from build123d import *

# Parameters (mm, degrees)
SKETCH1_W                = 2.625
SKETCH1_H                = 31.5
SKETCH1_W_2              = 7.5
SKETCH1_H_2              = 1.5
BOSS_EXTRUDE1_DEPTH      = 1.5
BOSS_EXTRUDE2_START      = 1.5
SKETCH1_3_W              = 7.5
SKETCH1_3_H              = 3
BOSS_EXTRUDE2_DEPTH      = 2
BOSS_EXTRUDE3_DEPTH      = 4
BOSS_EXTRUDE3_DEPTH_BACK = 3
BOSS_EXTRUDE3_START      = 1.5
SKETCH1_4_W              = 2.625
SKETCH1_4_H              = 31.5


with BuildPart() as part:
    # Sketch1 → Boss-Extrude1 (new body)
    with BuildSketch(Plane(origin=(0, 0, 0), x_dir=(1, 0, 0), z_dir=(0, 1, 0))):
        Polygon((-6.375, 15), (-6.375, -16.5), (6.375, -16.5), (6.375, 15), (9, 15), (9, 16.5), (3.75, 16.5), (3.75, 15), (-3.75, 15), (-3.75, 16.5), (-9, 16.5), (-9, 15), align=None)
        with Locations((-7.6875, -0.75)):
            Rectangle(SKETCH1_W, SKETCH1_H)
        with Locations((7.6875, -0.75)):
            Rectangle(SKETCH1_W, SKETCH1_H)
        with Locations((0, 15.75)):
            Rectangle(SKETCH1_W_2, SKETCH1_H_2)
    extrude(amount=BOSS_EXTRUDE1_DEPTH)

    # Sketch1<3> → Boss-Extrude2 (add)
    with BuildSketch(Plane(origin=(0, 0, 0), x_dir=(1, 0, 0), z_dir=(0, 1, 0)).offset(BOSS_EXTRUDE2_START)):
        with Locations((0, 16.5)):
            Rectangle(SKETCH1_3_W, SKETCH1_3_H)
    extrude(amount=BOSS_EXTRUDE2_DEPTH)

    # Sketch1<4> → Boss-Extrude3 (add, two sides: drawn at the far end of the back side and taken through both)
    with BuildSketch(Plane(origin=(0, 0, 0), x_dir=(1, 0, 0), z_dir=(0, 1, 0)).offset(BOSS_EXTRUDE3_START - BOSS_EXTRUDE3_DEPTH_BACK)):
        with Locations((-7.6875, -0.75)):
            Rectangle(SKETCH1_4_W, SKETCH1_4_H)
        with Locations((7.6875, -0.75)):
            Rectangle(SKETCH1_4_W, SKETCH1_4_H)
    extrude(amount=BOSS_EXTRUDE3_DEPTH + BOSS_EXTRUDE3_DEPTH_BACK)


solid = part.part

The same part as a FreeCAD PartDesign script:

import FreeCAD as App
import Part
import Sketcher
from FreeCAD import Vector


def add_polygon(sketch, points):
    """Adds a closed chain of lines whose ends are joined by coincident constraints."""
    first, n = sketch.GeometryCount, len(points)
    for a, b in zip(points, points[1:] + points[:1]):
        sketch.addGeometry(Part.LineSegment(App.Vector(*a, 0), App.Vector(*b, 0)), False)
    for i in range(n):
        sketch.addConstraint(Sketcher.Constraint("Coincident", first + i, 2, first + (i + 1) % n, 1))

doc = App.newDocument("Part")
params = doc.addObject("Spreadsheet::Sheet", "Params")
for row, (alias, value) in enumerate([
    ("sketch1_width", "18 mm"),
    ("sketch1_height", "33 mm"),
    ("pad1_length", "1.5 mm"),
    ("sketch2_height", "3 mm"),
    ("sketch2_width", "7.5 mm"),
    ("pad2_length", "2 mm"),
    ("sketch3_height", "31.5 mm"),
    ("pad3_length", "4 mm"),
    ("pad3_length2", "3 mm"),
], start=1):
    params.set(f"A{row}", alias)
    params.set(f"B{row}", "=" + value)
    params.setAlias(f"B{row}", alias)

body = doc.addObject("PartDesign::Body", "Body")

sketch1 = doc.addObject("Sketcher::SketchObject", "Sketch")
body.addObject(sketch1)
sketch1.AttachmentSupport = (doc.XZ_Plane, [""])
sketch1.MapMode = "FlatFace"
add_polygon(sketch1, [(9, -16), (-9, -16), (-9, 16), (9, 16)])
sketch1.addConstraint(Sketcher.Constraint("Horizontal", 0))
sketch1.addConstraint(Sketcher.Constraint("Vertical", 1))
sketch1.addConstraint(Sketcher.Constraint("Horizontal", 2))
sketch1.addConstraint(Sketcher.Constraint("Vertical", 3))
sketch1.addConstraint(Sketcher.Constraint("Symmetric", 0, 2, 2, 2, -1, 1))
sketch1.addConstraint(Sketcher.Constraint("DistanceX", 0, 2, 0, 1, 18.0))
sketch1.addConstraint(Sketcher.Constraint("DistanceY", 1, 1, 1, 2, 33.0))
sketch1.setExpression("Constraints[9]", "Params.sketch1_width")
sketch1.setExpression("Constraints[10]", "Params.sketch1_height")
pad1 = doc.addObject("PartDesign::Pad", "Pad")
body.addObject(pad1)
pad1.Profile = sketch1
pad1.setExpression("Length", "Params.pad1_length")
pad1.Reversed = True

sketch2 = doc.addObject("Sketcher::SketchObject", "Sketch001")
body.addObject(sketch2)
sketch2.AttachmentSupport = (doc.XZ_Plane, [""])
sketch2.MapMode = "FlatFace"
sketch2.AttachmentOffset = App.Placement(Vector(0, 0, -1.5), App.Rotation())
add_polygon(sketch2, [(-3.8, -18), (-3.8, -15), (3.8, -15), (3.8, -18)])
sketch2.addConstraint(Sketcher.Constraint("Vertical", 0))
sketch2.addConstraint(Sketcher.Constraint("Horizontal", 1))
sketch2.addConstraint(Sketcher.Constraint("Vertical", 2))
sketch2.addConstraint(Sketcher.Constraint("Horizontal", 3))
sketch2.addConstraint(Sketcher.Constraint("DistanceY", 0, 1, 0, 2, 3.0))
sketch2.addConstraint(Sketcher.Constraint("DistanceX", 1, 1, 1, 2, 7.5))
sketch2.addConstraint(Sketcher.Constraint("DistanceY", 0, 2, -1, 1, 15.0))
sketch2.addConstraint(Sketcher.Constraint("DistanceX", 0, 2, -1, 1, 3.75))
sketch2.setExpression("Constraints[8]", "Params.sketch2_height")
sketch2.setExpression("Constraints[9]", "Params.sketch2_width")
pad2 = doc.addObject("PartDesign::Pad", "Pad001")
body.addObject(pad2)
pad2.Profile = sketch2
pad2.setExpression("Length", "Params.pad2_length")
pad2.Reversed = True

sketch3 = doc.addObject("Sketcher::SketchObject", "Sketch002")
body.addObject(sketch3)
sketch3.AttachmentSupport = (doc.XZ_Plane, [""])
sketch3.MapMode = "FlatFace"
sketch3.AttachmentOffset = App.Placement(Vector(0, 0, -1.5), App.Rotation())
add_polygon(sketch3, [(-9, -15), (-9, 16.5), (-6.4, 16.5), (-6.4, -15)])
add_polygon(sketch3, [(6.4, -15), (6.4, 16.5), (9, 16.5), (9, -15)])
sketch3.addConstraint(Sketcher.Constraint("Vertical", 0))
sketch3.addConstraint(Sketcher.Constraint("Horizontal", 1))
sketch3.addConstraint(Sketcher.Constraint("Vertical", 2))
sketch3.addConstraint(Sketcher.Constraint("Horizontal", 3))
sketch3.addConstraint(Sketcher.Constraint("Vertical", 4))
sketch3.addConstraint(Sketcher.Constraint("Horizontal", 5))
sketch3.addConstraint(Sketcher.Constraint("Vertical", 6))
sketch3.addConstraint(Sketcher.Constraint("Horizontal", 7))
sketch3.addConstraint(Sketcher.Constraint("Symmetric", 1, 2, 4, 2, -2))
sketch3.addConstraint(Sketcher.Constraint("Symmetric", 3, 2, 6, 2, -2))
sketch3.addConstraint(Sketcher.Constraint("DistanceY", 0, 1, 0, 2, 31.5))
sketch3.addConstraint(Sketcher.Constraint("DistanceX", 0, 2, -1, 1, 9.0))
sketch3.addConstraint(Sketcher.Constraint("DistanceY", 2, 2, -1, 1, 15.0))
sketch3.addConstraint(Sketcher.Constraint("DistanceX", 1, 1, 1, 2, 2.625))
sketch3.setExpression("Constraints[18]", "Params.sketch3_height")
pad3 = doc.addObject("PartDesign::Pad", "Pad002")
body.addObject(pad3)
pad3.Profile = sketch3
pad3.Type = "TwoLengths"
pad3.setExpression("Length", "Params.pad3_length")
pad3.setExpression("Length2", "Params.pad3_length2")
pad3.Reversed = True

doc.recompute()
